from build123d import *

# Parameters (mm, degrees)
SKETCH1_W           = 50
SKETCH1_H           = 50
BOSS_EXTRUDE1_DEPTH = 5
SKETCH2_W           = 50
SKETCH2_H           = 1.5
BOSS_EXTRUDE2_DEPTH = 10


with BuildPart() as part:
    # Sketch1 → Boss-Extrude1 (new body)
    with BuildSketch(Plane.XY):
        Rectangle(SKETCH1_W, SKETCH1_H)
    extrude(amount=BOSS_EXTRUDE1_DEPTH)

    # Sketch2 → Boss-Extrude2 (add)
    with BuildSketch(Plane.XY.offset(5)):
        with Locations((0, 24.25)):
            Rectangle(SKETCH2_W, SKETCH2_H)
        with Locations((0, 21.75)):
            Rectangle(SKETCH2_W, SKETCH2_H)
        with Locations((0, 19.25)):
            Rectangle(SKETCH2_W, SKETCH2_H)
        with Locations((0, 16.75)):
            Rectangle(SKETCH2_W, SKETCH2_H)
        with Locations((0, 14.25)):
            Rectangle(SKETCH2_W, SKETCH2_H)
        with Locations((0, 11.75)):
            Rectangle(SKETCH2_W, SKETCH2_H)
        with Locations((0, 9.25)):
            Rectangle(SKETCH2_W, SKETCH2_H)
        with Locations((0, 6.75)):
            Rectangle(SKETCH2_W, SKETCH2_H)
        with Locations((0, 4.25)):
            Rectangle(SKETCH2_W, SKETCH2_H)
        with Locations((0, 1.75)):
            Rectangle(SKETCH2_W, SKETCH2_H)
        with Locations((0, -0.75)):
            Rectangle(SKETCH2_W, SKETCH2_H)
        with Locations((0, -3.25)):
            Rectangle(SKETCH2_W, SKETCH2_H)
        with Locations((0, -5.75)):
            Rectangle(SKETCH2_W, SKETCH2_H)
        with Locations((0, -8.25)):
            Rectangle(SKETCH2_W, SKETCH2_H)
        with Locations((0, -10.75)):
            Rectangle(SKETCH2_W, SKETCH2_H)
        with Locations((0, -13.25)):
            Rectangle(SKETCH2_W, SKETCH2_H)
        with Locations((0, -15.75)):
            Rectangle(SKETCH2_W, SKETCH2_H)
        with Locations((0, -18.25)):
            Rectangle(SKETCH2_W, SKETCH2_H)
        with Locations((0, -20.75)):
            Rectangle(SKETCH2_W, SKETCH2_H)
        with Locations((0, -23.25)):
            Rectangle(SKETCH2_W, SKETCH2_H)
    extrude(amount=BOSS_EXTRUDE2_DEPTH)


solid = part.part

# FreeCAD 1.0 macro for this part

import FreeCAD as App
import Part
import Sketcher

V = App.Vector


def add_polygon(sketch, points):
    """Adds a closed chain of lines whose ends are joined by coincident constraints."""
    first, n = sketch.GeometryCount, len(points)
    for a, b in zip(points, points[1:] + points[:1]):
        sketch.addGeometry(Part.LineSegment(App.Vector(*a, 0), App.Vector(*b, 0)), False)
    for i in range(n):
        sketch.addConstraint(Sketcher.Constraint("Coincident", first + i, 2, first + (i + 1) % n, 1))

doc = App.newDocument("Part")
body = doc.addObject("PartDesign::Body", "Body")

sketch1 = body.newObject("Sketcher::SketchObject", "Sketch")
sketch1.AttachmentSupport = (doc.getObject("XY_Plane"), [""])
sketch1.MapMode = "FlatFace"
add_polygon(sketch1, [(-25, 25), (-25, -25), (25, -25), (25, 25)])
sketch1.addConstraint([
    Sketcher.Constraint("Vertical", 0),
    Sketcher.Constraint("Horizontal", 1),
    Sketcher.Constraint("Vertical", 2),
    Sketcher.Constraint("Horizontal", 3),
    Sketcher.Constraint("Symmetric", 0, 2, 2, 2, -1, 1),
    Sketcher.Constraint("Equal", 3, 0),
    Sketcher.Constraint("DistanceX", 1, 1, 1, 2, 50.0),
])
pad1 = body.newObject("PartDesign::Pad", "Pad")
pad1.Profile = sketch1
pad1.Length = 5

sketch2 = body.newObject("Sketcher::SketchObject", "Sketch001")
sketch2.AttachmentSupport = (doc.getObject("XY_Plane"), [""])
sketch2.MapMode = "FlatFace"
sketch2.AttachmentOffset = App.Placement(V(0, 0, 5), App.Rotation())
add_polygon(sketch2, [(-25, 25), (-25, 23.5), (25, 23.5), (25, 25)])
add_polygon(sketch2, [(-25, 22.5), (-25, 21), (25, 21), (25, 22.5)])
add_polygon(sketch2, [(-25, 20), (-25, 18.5), (25, 18.5), (25, 20)])
add_polygon(sketch2, [(-25, 17.5), (-25, 16), (25, 16), (25, 17.5)])
add_polygon(sketch2, [(-25, 15), (-25, 13.5), (25, 13.5), (25, 15)])
add_polygon(sketch2, [(-25, 12.5), (-25, 11), (25, 11), (25, 12.5)])
add_polygon(sketch2, [(-25, 10), (-25, 8.5), (25, 8.5), (25, 10)])
add_polygon(sketch2, [(-25, 7.5), (-25, 6), (25, 6), (25, 7.5)])
add_polygon(sketch2, [(-25, 5), (-25, 3.5), (25, 3.5), (25, 5)])
add_polygon(sketch2, [(-25, 2.5), (-25, 1), (25, 1), (25, 2.5)])
add_polygon(sketch2, [(-25, 0), (-25, -1.5), (25, -1.5), (25, 0)])
add_polygon(sketch2, [(-25, -2.5), (-25, -4), (25, -4), (25, -2.5)])
add_polygon(sketch2, [(-25, -5), (-25, -6.5), (25, -6.5), (25, -5)])
add_polygon(sketch2, [(-25, -7.5), (-25, -9), (25, -9), (25, -7.5)])
add_polygon(sketch2, [(-25, -10), (-25, -11.5), (25, -11.5), (25, -10)])
add_polygon(sketch2, [(-25, -12.5), (-25, -14), (25, -14), (25, -12.5)])
add_polygon(sketch2, [(-25, -15), (-25, -16.5), (25, -16.5), (25, -15)])
add_polygon(sketch2, [(-25, -17.5), (-25, -19), (25, -19), (25, -17.5)])
add_polygon(sketch2, [(-25, -20), (-25, -21.5), (25, -21.5), (25, -20)])
add_polygon(sketch2, [(-25, -22.5), (-25, -24), (25, -24), (25, -22.5)])
sketch2.addConstraint([
    Sketcher.Constraint("Vertical", 0),
    Sketcher.Constraint("Horizontal", 1),
    Sketcher.Constraint("Vertical", 2),
    Sketcher.Constraint("Horizontal", 3),
    Sketcher.Constraint("Vertical", 4),
    Sketcher.Constraint("Horizontal", 5),
    Sketcher.Constraint("Vertical", 6),
    Sketcher.Constraint("Horizontal", 7),
    Sketcher.Constraint("Vertical", 8),
    Sketcher.Constraint("Horizontal", 9),
    Sketcher.Constraint("Vertical", 10),
    Sketcher.Constraint("Horizontal", 11),
    Sketcher.Constraint("Vertical", 12),
    Sketcher.Constraint("Horizontal", 13),
    Sketcher.Constraint("Vertical", 14),
    Sketcher.Constraint("Horizontal", 15),
    Sketcher.Constraint("Vertical", 16),
    Sketcher.Constraint("Horizontal", 17),
    Sketcher.Constraint("Vertical", 18),
    Sketcher.Constraint("Horizontal", 19),
    Sketcher.Constraint("Vertical", 20),
    Sketcher.Constraint("Horizontal", 21),
    Sketcher.Constraint("Vertical", 22),
    Sketcher.Constraint("Horizontal", 23),
    Sketcher.Constraint("Vertical", 24),
    Sketcher.Constraint("Horizontal", 25),
    Sketcher.Constraint("Vertical", 26),
    Sketcher.Constraint("Horizontal", 27),
    Sketcher.Constraint("Vertical", 28),
    Sketcher.Constraint("Horizontal", 29),
    Sketcher.Constraint("Vertical", 30),
    Sketcher.Constraint("Horizontal", 31),
    Sketcher.Constraint("Vertical", 32),
    Sketcher.Constraint("Horizontal", 33),
    Sketcher.Constraint("Vertical", 34),
    Sketcher.Constraint("Horizontal", 35),
    Sketcher.Constraint("Vertical", 36),
    Sketcher.Constraint("Horizontal", 37),
    Sketcher.Constraint("Vertical", 38),
    Sketcher.Constraint("Horizontal", 39),
    Sketcher.Constraint("Vertical", 40),
    Sketcher.Constraint("Horizontal", 41),
    Sketcher.Constraint("Vertical", 42),
    Sketcher.Constraint("Horizontal", 43),
    Sketcher.Constraint("Vertical", 44),
    Sketcher.Constraint("Horizontal", 45),
    Sketcher.Constraint("Vertical", 46),
    Sketcher.Constraint("Horizontal", 47),
    Sketcher.Constraint("Vertical", 48),
    Sketcher.Constraint("Horizontal", 49),
    Sketcher.Constraint("Vertical", 50),
    Sketcher.Constraint("Horizontal", 51),
    Sketcher.Constraint("Vertical", 52),
    Sketcher.Constraint("Horizontal", 53),
    Sketcher.Constraint("Vertical", 54),
    Sketcher.Constraint("Horizontal", 55),
    Sketcher.Constraint("Vertical", 56),
    Sketcher.Constraint("Horizontal", 57),
    Sketcher.Constraint("Vertical", 58),
    Sketcher.Constraint("Horizontal", 59),
    Sketcher.Constraint("Vertical", 60),
    Sketcher.Constraint("Horizontal", 61),
    Sketcher.Constraint("Vertical", 62),
    Sketcher.Constraint("Horizontal", 63),
    Sketcher.Constraint("Vertical", 64),
    Sketcher.Constraint("Horizontal", 65),
    Sketcher.Constraint("Vertical", 66),
    Sketcher.Constraint("Horizontal", 67),
    Sketcher.Constraint("Vertical", 68),
    Sketcher.Constraint("Horizontal", 69),
    Sketcher.Constraint("Vertical", 70),
    Sketcher.Constraint("Horizontal", 71),
    Sketcher.Constraint("Vertical", 72),
    Sketcher.Constraint("Horizontal", 73),
    Sketcher.Constraint("Vertical", 74),
    Sketcher.Constraint("Horizontal", 75),
    Sketcher.Constraint("Vertical", 76),
    Sketcher.Constraint("Horizontal", 77),
    Sketcher.Constraint("Vertical", 78),
    Sketcher.Constraint("Horizontal", 79),
    Sketcher.Constraint("Symmetric", 42, 2, 43, 2, -1, 1),
    Sketcher.Constraint("Symmetric", 39, 2, 46, 2, -1, 1),
    Sketcher.Constraint("Symmetric", 35, 2, 50, 2, -1, 1),
    Sketcher.Constraint("Symmetric", 31, 2, 54, 2, -1, 1),
    Sketcher.Constraint("Symmetric", 27, 2, 58, 2, -1, 1),
    Sketcher.Constraint("Symmetric", 23, 2, 62, 2, -1, 1),
    Sketcher.Constraint("Symmetric", 19, 2, 66, 2, -1, 1),
    Sketcher.Constraint("Symmetric", 15, 2, 70, 2, -1, 1),
    Sketcher.Constraint("Symmetric", 11, 2, 74, 2, -1, 1),
    Sketcher.Constraint("Symmetric", 7, 2, 78, 2, -1, 1),
    Sketcher.Constraint("Vertical", 3, 2, 4, 2),
    Sketcher.Constraint("Vertical", 2, 2, 5, 2),
    Sketcher.Constraint("Vertical", 7, 2, 8, 2),
    Sketcher.Constraint("Vertical", 6, 2, 9, 2),
    Sketcher.Constraint("Vertical", 11, 2, 12, 2),
    Sketcher.Constraint("Vertical", 10, 2, 13, 2),
    Sketcher.Constraint("Vertical", 15, 2, 16, 2),
    Sketcher.Constraint("Vertical", 14, 2, 17, 2),
    Sketcher.Constraint("Vertical", 19, 2, 20, 2),
    Sketcher.Constraint("Vertical", 18, 2, 21, 2),
    Sketcher.Constraint("Vertical", 23, 2, 24, 2),
    Sketcher.Constraint("Vertical", 22, 2, 25, 2),
    Sketcher.Constraint("Vertical", 27, 2, 28, 2),
    Sketcher.Constraint("Vertical", 26, 2, 29, 2),
    Sketcher.Constraint("Vertical", 31, 2, 32, 2),
    Sketcher.Constraint("Vertical", 30, 2, 33, 2),
    Sketcher.Constraint("Vertical", 35, 2, 36, 2),
    Sketcher.Constraint("Vertical", 34, 2, 37, 2),
    Sketcher.Constraint("Vertical", 39, 2, 40, 2),
    Sketcher.Constraint("Vertical", 38, 2, 41, 2),
    Sketcher.Constraint("Vertical", 43, 2, 44, 2),
    Sketcher.Constraint("Vertical", 47, 2, 48, 2),
    Sketcher.Constraint("Vertical", 51, 2, 52, 2),
    Sketcher.Constraint("Vertical", 55, 2, 56, 2),
    Sketcher.Constraint("Vertical", 59, 2, 60, 2),
    Sketcher.Constraint("Vertical", 63, 2, 64, 2),
    Sketcher.Constraint("Vertical", 67, 2, 68, 2),
    Sketcher.Constraint("Vertical", 71, 2, 72, 2),
    Sketcher.Constraint("Vertical", 75, 2, 76, 2),
    Sketcher.Constraint("Equal", 2, 4),
    Sketcher.Constraint("Equal", 6, 8),
    Sketcher.Constraint("Equal", 10, 12),
    Sketcher.Constraint("Equal", 14, 16),
    Sketcher.Constraint("Equal", 18, 20),
    Sketcher.Constraint("Equal", 22, 24),
    Sketcher.Constraint("Equal", 26, 28),
    Sketcher.Constraint("Equal", 30, 32),
    Sketcher.Constraint("Equal", 34, 36),
    Sketcher.Constraint("Equal", 38, 40),
    Sketcher.Constraint("Equal", 42, 44),
    Sketcher.Constraint("Equal", 46, 48),
    Sketcher.Constraint("Equal", 50, 52),
    Sketcher.Constraint("Equal", 54, 56),
    Sketcher.Constraint("Equal", 58, 60),
    Sketcher.Constraint("Equal", 62, 64),
    Sketcher.Constraint("Equal", 66, 68),
    Sketcher.Constraint("Equal", 70, 72),
    Sketcher.Constraint("Equal", 74, 76),
    Sketcher.Constraint("DistanceX", 1, 1, 1, 2, 50.0),
    Sketcher.Constraint("DistanceY", 0, 2, 0, 1, 1.5),
    Sketcher.Constraint("DistanceY", -1, 1, 2, 2, 25.0),
    Sketcher.Constraint("DistanceY", -1, 1, 4, 2, 21.0),
    Sketcher.Constraint("DistanceY", -1, 1, 10, 2, 20.0),
    Sketcher.Constraint("DistanceY", -1, 1, 12, 2, 16.0),
    Sketcher.Constraint("DistanceY", -1, 1, 18, 2, 15.0),
    Sketcher.Constraint("DistanceY", -1, 1, 20, 2, 11.0),
    Sketcher.Constraint("DistanceY", -1, 1, 26, 2, 10.0),
    Sketcher.Constraint("DistanceY", -1, 1, 28, 2, 6.0),
    Sketcher.Constraint("DistanceY", -1, 1, 34, 2, 5.0),
    Sketcher.Constraint("DistanceY", -1, 1, 36, 2, 1.0),
])
pad2 = body.newObject("PartDesign::Pad", "Pad001")
pad2.Profile = sketch2
pad2.Length = 10

doc.recompute()
